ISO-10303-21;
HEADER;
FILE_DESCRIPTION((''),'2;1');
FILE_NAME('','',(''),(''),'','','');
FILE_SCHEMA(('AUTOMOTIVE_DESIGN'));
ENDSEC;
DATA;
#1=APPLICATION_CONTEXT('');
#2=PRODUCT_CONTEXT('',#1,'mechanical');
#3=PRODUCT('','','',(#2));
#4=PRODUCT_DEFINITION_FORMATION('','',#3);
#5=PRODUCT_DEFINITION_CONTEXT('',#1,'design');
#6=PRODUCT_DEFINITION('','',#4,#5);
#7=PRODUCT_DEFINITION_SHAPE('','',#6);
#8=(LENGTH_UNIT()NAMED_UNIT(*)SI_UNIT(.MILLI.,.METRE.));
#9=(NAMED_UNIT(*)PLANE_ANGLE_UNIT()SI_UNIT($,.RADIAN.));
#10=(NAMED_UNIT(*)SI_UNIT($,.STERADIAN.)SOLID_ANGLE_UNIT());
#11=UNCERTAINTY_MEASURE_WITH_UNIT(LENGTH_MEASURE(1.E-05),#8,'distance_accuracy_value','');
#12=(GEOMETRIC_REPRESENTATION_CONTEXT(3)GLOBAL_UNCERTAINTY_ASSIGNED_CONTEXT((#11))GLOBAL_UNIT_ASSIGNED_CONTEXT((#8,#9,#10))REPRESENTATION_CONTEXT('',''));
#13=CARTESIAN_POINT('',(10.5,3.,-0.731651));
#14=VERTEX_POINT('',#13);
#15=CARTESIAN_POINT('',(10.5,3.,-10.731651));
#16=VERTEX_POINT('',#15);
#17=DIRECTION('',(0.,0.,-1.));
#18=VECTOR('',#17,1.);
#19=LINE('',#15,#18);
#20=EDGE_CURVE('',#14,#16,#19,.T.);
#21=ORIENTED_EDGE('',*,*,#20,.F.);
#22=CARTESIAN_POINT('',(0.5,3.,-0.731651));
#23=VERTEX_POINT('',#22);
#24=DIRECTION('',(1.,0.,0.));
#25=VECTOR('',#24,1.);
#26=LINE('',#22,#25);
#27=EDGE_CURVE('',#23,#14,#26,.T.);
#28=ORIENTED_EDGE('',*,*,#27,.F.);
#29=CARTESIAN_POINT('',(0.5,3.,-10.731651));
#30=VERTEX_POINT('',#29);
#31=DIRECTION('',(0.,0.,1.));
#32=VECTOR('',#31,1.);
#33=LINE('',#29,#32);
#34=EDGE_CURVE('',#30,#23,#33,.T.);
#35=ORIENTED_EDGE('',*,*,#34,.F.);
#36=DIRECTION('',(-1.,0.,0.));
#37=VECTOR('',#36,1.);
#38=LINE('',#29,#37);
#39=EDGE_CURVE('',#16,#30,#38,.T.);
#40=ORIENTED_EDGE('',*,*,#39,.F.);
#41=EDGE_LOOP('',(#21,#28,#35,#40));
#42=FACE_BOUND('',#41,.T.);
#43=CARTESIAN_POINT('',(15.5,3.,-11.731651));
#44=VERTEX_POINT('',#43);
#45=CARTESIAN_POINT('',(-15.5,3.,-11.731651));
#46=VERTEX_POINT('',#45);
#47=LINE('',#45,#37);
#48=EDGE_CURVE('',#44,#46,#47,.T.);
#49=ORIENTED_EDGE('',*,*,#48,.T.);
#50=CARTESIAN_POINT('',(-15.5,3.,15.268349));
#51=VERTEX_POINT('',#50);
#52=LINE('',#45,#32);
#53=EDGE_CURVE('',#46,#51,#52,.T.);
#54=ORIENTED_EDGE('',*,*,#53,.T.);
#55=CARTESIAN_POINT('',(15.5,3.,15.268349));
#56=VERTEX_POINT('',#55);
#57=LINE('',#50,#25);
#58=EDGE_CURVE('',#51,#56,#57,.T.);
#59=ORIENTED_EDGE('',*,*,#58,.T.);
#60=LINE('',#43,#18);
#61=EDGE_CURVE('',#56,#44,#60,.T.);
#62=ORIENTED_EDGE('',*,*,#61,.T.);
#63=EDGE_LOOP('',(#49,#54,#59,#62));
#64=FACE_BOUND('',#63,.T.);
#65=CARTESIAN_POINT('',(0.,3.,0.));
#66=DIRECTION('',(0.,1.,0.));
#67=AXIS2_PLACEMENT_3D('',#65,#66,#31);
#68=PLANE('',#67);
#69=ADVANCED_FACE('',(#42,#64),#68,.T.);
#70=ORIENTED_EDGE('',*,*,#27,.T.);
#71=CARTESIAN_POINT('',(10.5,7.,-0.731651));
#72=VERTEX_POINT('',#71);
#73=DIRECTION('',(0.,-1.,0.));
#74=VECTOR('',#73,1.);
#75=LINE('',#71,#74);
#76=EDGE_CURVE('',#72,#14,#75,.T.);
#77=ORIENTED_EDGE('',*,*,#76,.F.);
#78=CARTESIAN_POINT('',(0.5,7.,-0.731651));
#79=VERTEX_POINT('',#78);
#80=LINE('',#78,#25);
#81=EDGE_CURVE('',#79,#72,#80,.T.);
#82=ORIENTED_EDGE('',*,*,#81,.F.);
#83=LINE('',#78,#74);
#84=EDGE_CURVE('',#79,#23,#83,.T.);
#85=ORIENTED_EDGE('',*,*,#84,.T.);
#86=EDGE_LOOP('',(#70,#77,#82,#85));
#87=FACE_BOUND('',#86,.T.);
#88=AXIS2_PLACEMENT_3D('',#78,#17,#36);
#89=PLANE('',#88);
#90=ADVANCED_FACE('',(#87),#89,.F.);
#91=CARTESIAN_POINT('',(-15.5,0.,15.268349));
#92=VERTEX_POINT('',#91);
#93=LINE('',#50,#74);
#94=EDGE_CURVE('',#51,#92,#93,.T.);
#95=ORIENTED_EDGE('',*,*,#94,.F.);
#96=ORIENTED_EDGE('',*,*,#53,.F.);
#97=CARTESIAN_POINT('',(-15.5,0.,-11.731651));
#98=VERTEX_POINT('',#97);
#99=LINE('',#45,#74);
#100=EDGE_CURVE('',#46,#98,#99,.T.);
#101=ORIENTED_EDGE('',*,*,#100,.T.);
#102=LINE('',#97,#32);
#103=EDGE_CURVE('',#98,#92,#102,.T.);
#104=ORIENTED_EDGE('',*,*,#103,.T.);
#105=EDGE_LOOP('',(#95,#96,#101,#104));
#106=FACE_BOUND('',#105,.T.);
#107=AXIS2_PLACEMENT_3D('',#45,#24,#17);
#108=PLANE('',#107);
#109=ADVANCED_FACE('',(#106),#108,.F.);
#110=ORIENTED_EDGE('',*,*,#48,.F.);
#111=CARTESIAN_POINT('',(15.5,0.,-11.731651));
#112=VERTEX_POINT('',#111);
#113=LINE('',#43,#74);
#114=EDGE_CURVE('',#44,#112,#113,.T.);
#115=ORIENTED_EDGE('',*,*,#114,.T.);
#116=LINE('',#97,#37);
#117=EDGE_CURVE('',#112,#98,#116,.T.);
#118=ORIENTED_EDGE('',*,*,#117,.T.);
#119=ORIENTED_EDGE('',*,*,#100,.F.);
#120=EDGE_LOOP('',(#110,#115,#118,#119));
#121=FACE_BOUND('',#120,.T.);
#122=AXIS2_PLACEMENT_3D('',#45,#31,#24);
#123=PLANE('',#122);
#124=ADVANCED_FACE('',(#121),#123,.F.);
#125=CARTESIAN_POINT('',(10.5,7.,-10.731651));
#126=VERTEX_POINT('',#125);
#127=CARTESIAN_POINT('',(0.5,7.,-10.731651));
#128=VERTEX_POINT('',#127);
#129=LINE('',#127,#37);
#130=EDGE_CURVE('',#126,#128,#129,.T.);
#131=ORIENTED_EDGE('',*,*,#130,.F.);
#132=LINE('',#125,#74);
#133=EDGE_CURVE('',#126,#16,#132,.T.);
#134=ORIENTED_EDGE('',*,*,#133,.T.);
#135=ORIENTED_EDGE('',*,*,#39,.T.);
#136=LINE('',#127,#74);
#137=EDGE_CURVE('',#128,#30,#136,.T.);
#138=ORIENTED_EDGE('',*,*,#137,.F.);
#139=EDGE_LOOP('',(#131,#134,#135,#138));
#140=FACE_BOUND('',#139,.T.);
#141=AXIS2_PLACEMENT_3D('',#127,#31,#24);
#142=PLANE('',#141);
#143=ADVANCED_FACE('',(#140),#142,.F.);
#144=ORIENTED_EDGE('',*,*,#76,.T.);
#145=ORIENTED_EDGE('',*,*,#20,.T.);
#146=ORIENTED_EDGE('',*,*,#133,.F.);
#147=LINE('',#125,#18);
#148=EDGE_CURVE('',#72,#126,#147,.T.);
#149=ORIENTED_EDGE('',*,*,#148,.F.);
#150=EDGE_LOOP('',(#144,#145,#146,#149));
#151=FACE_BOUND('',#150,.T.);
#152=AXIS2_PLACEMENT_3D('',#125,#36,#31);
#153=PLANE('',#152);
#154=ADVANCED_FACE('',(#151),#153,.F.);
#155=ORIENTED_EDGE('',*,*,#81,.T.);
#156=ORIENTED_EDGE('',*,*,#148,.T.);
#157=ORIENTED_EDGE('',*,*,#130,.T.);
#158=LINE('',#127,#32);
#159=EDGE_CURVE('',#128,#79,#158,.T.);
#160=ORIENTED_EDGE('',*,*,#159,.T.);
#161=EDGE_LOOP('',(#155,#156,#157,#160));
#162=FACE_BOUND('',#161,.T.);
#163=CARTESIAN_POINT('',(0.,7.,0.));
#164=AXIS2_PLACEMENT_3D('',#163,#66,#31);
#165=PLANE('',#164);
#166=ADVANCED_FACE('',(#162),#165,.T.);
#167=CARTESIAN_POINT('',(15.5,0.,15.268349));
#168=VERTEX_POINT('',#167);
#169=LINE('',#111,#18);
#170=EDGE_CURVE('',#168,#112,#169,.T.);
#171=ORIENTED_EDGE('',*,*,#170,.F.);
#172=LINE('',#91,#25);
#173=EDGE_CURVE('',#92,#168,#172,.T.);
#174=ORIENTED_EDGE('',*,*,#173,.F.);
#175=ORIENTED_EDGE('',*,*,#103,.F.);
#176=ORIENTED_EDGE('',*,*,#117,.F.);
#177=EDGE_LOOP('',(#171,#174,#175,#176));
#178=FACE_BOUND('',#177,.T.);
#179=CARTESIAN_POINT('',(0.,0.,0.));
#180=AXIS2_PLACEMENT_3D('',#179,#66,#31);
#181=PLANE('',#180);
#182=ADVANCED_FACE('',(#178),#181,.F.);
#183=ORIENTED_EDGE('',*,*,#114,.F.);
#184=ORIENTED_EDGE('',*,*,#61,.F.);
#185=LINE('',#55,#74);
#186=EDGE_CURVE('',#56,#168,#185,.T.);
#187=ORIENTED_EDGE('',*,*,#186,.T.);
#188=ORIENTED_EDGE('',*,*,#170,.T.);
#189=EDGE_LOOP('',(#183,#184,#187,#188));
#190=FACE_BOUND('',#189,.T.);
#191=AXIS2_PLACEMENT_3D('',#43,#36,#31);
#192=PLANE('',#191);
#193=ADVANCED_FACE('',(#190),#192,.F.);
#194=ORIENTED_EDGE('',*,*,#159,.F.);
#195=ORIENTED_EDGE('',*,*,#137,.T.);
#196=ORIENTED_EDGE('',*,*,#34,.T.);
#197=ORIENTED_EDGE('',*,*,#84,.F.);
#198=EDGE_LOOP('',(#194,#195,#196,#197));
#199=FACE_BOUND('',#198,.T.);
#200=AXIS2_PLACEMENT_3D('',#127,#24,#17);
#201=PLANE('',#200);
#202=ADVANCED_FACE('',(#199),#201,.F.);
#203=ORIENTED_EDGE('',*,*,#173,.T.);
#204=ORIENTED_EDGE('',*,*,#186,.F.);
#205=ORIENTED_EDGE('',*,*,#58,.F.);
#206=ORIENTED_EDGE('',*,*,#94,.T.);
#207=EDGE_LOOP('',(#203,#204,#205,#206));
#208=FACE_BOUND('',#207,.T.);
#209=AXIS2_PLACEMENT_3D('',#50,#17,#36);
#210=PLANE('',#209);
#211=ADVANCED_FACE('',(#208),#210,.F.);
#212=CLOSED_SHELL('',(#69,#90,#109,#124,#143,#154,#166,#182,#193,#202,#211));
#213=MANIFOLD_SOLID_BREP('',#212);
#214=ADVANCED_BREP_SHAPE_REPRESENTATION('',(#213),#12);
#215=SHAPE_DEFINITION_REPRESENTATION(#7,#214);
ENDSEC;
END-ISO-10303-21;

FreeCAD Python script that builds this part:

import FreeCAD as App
import Part
import Sketcher

V = App.Vector
Q = App.Units.Quantity

doc = App.newDocument("Part")
body = doc.addObject("PartDesign::Body", "Body")

sketch1 = body.newObject("Sketcher::SketchObject", "Sketch")
sketch1.AttachmentSupport = (doc.getObject("XZ_Plane"), [""])
sketch1.MapMode = "FlatFace"
sketch1.addGeometry(Part.LineSegment(V(-16, -12, 0), V(-16, 15, 0)), False)
sketch1.addGeometry(Part.LineSegment(V(-16, 15, 0), V(16, 15, 0)), False)
sketch1.addGeometry(Part.LineSegment(V(16, 15, 0), V(16, -12, 0)), False)
sketch1.addGeometry(Part.LineSegment(V(16, -12, 0), V(-16, -12, 0)), False)
sketch1.addConstraint(Sketcher.Constraint("Coincident", 0, 2, 1, 1))
sketch1.addConstraint(Sketcher.Constraint("Coincident", 1, 2, 2, 1))
sketch1.addConstraint(Sketcher.Constraint("Coincident", 2, 2, 3, 1))
sketch1.addConstraint(Sketcher.Constraint("Coincident", 3, 2, 0, 1))
sketch1.addConstraint(Sketcher.Constraint("Vertical", 0))
sketch1.addConstraint(Sketcher.Constraint("Horizontal", 1))
sketch1.addConstraint(Sketcher.Constraint("Vertical", 2))
sketch1.addConstraint(Sketcher.Constraint("Horizontal", 3))
sketch1.addConstraint(Sketcher.Constraint("DistanceX", 1, 1, 1, 2, Q("31 mm")))
sketch1.addConstraint(Sketcher.Constraint("DistanceY", 0, 1, 0, 2, Q("27 mm")))
sketch1.addConstraint(Sketcher.Constraint("DistanceX", 0, 2, -1, 1, Q("15.5 mm")))
sketch1.addConstraint(Sketcher.Constraint("DistanceY", -1, 1, 0, 2, Q("15.268349 mm")))
pad1 = body.newObject("PartDesign::Pad", "Pad")
pad1.Profile = sketch1
pad1.Length = 3
pad1.Reversed = True

sketch2 = body.newObject("Sketcher::SketchObject", "Sketch001")
sketch2.AttachmentSupport = (doc.getObject("XZ_Plane"), [""])
sketch2.MapMode = "FlatFace"
sketch2.AttachmentOffset = App.Placement(V(0, 0, -3), App.Rotation())
sketch2.addGeometry(Part.LineSegment(V(0, -11, 0), V(0, -1, 0)), False)
sketch2.addGeometry(Part.LineSegment(V(0, -1, 0), V(10, -1, 0)), False)
sketch2.addGeometry(Part.LineSegment(V(10, -1, 0), V(10, -11, 0)), False)
sketch2.addGeometry(Part.LineSegment(V(10, -11, 0), V(0, -11, 0)), False)
sketch2.addConstraint(Sketcher.Constraint("Coincident", 0, 2, 1, 1))
sketch2.addConstraint(Sketcher.Constraint("Coincident", 1, 2, 2, 1))
sketch2.addConstraint(Sketcher.Constraint("Coincident", 2, 2, 3, 1))
sketch2.addConstraint(Sketcher.Constraint("Coincident", 3, 2, 0, 1))
sketch2.addConstraint(Sketcher.Constraint("Vertical", 0))
sketch2.addConstraint(Sketcher.Constraint("Horizontal", 1))
sketch2.addConstraint(Sketcher.Constraint("Vertical", 2))
sketch2.addConstraint(Sketcher.Constraint("Horizontal", 3))
sketch2.addConstraint(Sketcher.Constraint("Equal", 3, 0))
sketch2.addConstraint(Sketcher.Constraint("DistanceX", 1, 1, 1, 2, Q("10 mm")))
sketch2.addConstraint(Sketcher.Constraint("DistanceX", -1, 1, 0, 2, Q("0.5 mm")))
sketch2.addConstraint(Sketcher.Constraint("DistanceY", 0, 2, -1, 1, Q("0.731651 mm")))
pad2 = body.newObject("PartDesign::Pad", "Pad001")
pad2.Profile = sketch2
pad2.Length = 4
pad2.Reversed = True

doc.recompute()
